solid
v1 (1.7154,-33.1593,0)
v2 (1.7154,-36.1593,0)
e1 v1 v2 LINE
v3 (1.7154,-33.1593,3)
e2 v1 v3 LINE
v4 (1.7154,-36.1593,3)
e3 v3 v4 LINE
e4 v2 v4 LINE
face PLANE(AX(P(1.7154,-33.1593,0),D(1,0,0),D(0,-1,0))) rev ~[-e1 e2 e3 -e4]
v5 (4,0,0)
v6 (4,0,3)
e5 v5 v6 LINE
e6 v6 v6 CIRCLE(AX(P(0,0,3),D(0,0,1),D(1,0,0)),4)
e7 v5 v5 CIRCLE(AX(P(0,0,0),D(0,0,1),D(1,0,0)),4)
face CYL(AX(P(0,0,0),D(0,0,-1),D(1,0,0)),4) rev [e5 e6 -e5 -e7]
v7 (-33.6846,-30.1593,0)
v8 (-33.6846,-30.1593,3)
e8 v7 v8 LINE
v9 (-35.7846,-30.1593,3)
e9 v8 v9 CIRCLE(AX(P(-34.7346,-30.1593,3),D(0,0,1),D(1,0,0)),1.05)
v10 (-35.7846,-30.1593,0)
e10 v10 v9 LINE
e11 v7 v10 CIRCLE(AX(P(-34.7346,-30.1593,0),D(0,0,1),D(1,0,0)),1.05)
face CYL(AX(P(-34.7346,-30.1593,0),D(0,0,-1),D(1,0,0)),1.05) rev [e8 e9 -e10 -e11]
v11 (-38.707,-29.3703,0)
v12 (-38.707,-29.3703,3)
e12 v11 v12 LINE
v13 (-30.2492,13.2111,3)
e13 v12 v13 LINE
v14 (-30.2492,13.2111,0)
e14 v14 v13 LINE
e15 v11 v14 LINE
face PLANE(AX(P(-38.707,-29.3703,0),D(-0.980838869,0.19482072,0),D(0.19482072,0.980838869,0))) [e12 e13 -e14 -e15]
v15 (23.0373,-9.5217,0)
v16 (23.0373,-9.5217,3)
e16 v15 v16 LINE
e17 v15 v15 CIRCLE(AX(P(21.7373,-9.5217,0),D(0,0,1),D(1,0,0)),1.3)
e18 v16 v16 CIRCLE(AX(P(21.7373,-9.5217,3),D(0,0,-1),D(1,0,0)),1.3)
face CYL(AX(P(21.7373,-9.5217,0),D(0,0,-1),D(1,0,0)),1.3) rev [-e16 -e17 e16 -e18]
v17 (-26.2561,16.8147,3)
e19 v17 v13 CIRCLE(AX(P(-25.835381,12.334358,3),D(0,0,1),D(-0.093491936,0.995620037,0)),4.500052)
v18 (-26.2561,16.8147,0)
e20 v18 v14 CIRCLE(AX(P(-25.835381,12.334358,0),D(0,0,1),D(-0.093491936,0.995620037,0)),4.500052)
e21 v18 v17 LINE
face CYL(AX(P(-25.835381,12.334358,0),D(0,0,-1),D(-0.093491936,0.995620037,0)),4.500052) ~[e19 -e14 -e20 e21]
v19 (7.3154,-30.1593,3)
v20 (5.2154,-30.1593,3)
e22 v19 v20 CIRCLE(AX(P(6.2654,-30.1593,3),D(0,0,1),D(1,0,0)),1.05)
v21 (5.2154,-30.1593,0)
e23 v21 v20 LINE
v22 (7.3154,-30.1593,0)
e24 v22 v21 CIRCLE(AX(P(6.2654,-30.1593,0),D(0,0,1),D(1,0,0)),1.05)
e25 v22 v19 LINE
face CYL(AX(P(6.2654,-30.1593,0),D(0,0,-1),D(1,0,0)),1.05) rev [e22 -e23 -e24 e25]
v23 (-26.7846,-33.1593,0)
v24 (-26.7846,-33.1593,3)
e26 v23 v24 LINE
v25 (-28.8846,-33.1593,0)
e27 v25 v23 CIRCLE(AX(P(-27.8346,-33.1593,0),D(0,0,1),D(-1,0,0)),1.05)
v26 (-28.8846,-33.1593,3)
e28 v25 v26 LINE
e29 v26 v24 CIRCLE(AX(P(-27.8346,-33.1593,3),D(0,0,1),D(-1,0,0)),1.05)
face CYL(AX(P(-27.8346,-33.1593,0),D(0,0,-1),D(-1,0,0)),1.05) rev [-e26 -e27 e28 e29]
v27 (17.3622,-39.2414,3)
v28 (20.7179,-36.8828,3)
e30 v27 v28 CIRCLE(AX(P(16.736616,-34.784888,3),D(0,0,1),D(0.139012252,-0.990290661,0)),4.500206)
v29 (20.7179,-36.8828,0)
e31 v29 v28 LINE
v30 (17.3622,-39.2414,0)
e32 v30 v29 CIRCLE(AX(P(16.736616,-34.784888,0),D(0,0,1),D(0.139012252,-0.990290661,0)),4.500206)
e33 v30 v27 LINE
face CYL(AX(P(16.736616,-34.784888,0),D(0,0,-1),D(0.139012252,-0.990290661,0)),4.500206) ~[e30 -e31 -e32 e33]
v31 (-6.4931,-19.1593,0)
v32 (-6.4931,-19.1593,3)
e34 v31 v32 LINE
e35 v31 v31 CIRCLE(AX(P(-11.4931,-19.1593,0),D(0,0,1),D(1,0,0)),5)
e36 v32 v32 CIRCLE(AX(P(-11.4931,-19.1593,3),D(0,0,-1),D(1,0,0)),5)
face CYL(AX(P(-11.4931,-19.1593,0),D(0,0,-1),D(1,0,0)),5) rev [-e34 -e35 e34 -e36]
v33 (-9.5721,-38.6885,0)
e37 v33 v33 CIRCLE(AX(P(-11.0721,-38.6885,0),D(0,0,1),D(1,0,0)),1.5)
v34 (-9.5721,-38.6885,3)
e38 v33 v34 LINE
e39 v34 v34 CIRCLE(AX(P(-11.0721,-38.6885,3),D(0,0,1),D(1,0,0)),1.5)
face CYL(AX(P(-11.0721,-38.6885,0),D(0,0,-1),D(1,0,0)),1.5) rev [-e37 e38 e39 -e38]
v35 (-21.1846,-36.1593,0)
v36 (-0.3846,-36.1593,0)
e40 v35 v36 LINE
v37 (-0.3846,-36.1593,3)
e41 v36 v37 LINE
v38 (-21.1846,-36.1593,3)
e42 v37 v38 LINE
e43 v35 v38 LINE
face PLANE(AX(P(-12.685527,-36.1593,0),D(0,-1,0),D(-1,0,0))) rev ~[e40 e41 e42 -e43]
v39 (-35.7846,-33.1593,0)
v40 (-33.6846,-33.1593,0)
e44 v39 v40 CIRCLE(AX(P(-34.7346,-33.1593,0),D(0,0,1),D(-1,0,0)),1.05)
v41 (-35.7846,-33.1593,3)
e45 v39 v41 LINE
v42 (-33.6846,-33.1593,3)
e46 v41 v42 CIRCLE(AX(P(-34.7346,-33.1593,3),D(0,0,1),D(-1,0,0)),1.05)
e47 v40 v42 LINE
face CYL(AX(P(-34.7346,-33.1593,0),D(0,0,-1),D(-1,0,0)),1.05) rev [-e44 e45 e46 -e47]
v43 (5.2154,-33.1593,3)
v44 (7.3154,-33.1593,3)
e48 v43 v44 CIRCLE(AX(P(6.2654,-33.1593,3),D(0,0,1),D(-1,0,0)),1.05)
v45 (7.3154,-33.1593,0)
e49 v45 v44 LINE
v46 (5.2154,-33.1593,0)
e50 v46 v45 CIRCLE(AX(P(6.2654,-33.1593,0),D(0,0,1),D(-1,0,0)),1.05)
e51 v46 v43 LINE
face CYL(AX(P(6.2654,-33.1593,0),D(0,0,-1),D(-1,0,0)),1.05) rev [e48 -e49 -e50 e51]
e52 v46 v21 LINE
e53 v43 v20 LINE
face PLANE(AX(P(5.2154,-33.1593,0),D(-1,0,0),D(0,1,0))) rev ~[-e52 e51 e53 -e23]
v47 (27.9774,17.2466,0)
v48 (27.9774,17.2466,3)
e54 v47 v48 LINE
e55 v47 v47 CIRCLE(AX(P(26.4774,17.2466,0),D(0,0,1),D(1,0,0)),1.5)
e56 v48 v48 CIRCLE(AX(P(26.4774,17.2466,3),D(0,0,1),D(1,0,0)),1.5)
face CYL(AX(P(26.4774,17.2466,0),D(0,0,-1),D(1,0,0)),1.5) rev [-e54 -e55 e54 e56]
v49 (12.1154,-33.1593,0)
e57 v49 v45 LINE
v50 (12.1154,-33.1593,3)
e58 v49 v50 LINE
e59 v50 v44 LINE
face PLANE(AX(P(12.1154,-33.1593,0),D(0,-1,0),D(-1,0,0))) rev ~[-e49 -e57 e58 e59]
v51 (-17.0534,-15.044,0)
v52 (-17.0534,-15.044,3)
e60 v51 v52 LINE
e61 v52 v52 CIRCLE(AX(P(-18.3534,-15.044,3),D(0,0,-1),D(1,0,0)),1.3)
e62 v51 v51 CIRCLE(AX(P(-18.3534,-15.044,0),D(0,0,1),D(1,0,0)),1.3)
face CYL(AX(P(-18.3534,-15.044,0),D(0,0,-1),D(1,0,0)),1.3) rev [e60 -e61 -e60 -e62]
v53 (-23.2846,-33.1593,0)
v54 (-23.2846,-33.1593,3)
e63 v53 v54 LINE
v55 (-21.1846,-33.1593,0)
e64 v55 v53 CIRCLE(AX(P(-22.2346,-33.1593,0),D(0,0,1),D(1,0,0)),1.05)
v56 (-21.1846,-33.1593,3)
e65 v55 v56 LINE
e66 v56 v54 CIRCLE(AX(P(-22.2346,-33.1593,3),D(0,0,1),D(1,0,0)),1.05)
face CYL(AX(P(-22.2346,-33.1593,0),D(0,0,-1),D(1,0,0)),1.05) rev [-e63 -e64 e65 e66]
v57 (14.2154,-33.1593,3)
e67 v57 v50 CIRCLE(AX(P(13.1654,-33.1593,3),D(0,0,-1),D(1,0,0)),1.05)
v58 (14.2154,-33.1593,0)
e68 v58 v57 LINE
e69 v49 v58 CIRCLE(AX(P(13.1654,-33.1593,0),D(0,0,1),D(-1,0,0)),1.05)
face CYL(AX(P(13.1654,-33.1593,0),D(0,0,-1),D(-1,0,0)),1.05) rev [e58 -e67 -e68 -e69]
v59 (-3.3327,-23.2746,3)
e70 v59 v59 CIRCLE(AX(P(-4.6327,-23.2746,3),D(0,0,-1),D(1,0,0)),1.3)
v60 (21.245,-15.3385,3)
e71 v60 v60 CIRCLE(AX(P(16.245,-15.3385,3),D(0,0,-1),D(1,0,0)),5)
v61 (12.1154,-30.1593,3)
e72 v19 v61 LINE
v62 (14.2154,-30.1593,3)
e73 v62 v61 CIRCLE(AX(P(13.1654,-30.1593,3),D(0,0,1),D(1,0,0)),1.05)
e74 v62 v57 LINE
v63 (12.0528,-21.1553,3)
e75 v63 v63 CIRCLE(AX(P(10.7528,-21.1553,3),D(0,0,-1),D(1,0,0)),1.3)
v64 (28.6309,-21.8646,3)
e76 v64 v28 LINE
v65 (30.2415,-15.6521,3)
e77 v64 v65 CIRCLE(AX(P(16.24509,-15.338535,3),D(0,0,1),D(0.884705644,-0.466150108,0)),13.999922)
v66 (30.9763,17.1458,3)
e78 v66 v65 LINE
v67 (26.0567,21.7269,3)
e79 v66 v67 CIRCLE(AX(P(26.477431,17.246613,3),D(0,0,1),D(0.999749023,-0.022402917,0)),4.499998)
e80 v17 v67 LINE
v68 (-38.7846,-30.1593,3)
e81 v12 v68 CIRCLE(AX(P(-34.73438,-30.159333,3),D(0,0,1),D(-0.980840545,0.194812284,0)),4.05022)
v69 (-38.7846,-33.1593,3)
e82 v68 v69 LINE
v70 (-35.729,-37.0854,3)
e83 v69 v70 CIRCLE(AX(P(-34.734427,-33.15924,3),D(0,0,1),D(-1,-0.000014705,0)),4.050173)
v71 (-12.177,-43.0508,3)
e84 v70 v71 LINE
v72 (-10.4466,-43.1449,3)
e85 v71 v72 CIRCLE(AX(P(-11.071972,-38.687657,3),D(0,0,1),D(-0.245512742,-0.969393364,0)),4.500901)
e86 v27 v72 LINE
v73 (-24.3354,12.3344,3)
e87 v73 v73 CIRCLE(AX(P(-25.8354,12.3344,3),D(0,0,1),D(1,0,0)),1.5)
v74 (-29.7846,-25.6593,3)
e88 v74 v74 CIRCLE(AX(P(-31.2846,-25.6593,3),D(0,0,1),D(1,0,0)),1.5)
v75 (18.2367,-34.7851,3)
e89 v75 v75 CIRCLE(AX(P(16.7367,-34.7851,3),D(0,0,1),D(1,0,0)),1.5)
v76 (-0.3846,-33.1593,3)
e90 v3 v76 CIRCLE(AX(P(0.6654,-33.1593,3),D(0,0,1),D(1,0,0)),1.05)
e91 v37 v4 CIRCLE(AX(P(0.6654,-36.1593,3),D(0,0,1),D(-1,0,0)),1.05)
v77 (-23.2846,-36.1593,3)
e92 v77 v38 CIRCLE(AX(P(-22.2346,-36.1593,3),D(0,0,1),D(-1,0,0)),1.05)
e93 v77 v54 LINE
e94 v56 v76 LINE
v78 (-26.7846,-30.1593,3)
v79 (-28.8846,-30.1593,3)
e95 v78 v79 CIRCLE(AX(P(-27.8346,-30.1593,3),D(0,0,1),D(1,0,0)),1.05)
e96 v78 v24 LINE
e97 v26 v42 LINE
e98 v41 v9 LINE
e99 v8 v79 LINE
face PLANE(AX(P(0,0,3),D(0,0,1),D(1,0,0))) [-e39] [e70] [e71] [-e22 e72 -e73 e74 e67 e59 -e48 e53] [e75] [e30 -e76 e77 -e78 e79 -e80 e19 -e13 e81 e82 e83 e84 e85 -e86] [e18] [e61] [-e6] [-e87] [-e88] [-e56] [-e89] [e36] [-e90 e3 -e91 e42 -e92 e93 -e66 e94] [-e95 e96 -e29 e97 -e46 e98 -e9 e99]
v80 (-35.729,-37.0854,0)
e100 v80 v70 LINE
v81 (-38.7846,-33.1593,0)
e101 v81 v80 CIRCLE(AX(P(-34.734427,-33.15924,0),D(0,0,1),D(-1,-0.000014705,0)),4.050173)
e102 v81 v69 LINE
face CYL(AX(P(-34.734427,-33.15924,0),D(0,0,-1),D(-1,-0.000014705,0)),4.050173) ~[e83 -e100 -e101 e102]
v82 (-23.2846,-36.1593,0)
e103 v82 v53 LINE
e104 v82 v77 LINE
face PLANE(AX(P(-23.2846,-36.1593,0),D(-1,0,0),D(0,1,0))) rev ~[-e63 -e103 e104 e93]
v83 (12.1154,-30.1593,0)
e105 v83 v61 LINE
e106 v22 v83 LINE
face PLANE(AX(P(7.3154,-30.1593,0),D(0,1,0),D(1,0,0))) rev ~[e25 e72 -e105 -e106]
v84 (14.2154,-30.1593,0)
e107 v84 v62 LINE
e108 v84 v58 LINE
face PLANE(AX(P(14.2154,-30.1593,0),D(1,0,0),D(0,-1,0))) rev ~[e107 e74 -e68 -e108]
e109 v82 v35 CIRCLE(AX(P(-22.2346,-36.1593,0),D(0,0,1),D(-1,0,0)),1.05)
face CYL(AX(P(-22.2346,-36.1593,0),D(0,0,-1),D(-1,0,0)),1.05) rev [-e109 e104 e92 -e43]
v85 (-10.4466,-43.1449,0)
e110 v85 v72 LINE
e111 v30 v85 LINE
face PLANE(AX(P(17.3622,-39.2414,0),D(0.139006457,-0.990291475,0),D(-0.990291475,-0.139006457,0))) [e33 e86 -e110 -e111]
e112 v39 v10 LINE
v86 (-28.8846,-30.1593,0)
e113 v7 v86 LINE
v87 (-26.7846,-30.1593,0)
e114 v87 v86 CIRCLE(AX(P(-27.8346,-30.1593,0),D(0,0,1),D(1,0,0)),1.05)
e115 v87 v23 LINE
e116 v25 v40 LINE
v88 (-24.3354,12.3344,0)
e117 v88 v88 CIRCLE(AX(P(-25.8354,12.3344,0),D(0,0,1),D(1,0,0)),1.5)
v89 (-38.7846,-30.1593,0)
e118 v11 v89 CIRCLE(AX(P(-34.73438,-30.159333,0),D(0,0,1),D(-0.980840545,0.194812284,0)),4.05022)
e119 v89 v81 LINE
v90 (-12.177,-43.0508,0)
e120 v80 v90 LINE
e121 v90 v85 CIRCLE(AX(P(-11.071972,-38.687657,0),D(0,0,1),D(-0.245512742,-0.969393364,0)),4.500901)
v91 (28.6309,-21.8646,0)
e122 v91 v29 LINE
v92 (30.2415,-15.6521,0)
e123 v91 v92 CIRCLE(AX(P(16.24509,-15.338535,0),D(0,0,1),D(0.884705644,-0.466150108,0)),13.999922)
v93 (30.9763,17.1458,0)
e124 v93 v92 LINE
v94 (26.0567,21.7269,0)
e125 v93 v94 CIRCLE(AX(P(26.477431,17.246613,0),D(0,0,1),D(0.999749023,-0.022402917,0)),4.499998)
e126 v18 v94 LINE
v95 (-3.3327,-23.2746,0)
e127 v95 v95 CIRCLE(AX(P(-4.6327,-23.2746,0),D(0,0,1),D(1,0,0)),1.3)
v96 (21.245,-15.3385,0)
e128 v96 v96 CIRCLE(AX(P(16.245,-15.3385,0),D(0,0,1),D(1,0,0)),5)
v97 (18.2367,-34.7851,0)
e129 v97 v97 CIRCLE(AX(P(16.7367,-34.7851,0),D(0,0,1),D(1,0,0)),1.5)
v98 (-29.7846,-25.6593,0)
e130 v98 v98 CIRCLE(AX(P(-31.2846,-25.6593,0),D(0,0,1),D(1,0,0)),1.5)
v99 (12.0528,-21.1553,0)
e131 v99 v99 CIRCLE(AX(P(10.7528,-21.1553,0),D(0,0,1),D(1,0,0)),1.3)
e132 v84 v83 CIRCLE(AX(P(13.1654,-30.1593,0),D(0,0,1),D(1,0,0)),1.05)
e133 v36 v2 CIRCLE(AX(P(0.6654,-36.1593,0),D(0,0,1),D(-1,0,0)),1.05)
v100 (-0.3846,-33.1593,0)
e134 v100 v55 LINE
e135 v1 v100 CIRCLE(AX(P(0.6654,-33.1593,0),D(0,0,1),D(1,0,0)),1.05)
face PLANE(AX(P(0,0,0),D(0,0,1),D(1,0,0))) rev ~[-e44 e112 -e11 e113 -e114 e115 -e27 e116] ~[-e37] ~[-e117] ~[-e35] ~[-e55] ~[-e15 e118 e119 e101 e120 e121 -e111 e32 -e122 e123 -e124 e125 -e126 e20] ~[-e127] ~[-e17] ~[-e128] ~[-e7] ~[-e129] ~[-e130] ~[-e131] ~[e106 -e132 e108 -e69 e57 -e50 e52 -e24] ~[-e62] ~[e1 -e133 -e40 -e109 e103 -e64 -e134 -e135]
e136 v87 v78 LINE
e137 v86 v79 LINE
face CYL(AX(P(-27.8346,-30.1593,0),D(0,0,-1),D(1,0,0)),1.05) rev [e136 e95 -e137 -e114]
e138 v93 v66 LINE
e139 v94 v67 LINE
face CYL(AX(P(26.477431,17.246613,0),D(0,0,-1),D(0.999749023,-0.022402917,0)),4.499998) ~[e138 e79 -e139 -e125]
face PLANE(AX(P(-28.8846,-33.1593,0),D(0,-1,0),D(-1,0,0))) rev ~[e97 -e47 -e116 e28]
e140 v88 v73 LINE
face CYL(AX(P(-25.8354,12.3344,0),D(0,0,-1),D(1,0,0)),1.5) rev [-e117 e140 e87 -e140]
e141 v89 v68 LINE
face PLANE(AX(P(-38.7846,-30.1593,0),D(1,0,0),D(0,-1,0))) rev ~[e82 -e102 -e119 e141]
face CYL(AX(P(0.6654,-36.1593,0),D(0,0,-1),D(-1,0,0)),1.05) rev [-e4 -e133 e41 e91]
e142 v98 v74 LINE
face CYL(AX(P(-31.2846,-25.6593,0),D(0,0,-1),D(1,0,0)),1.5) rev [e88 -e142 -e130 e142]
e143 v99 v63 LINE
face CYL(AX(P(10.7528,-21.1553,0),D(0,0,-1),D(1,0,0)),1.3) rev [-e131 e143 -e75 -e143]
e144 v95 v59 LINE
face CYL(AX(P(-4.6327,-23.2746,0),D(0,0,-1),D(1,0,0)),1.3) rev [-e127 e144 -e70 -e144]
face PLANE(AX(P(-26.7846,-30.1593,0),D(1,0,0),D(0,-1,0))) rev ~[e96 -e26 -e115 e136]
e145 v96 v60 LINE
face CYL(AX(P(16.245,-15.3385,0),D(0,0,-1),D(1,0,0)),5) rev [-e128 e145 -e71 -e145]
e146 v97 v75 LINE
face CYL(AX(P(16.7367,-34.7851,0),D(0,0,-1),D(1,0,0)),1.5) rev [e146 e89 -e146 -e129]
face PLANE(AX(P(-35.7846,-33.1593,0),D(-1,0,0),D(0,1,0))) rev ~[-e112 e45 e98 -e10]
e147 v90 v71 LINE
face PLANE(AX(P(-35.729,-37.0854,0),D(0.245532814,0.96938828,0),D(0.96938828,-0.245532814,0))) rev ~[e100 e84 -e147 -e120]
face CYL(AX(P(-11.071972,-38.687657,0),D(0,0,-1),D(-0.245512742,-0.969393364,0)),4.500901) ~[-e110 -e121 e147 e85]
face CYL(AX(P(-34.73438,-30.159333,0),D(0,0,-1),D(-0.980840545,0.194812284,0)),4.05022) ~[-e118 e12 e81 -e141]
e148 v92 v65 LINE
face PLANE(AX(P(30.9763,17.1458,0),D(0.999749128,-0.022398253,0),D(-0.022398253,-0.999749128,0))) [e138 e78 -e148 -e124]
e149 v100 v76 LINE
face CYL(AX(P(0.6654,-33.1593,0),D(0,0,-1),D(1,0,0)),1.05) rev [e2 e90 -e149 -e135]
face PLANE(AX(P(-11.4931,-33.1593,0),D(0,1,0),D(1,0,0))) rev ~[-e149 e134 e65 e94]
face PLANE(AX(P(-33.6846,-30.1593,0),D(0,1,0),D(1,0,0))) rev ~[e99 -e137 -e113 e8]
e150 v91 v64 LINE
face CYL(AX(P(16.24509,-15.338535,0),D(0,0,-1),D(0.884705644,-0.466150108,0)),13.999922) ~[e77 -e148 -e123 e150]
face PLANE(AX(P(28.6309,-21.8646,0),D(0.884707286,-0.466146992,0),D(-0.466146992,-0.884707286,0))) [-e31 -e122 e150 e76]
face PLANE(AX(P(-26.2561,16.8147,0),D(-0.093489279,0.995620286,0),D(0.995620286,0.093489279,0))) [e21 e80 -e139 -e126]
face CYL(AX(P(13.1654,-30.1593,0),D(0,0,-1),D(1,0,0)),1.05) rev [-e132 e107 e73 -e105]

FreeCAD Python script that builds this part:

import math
import FreeCAD as App
import Part
import Sketcher

V = App.Vector
Q = App.Units.Quantity

doc = App.newDocument("Part")
body = doc.addObject("PartDesign::Body", "Body")

sketch1 = body.newObject("Sketcher::SketchObject", "Sketch")
sketch1.AttachmentSupport = (doc.getObject("XY_Plane"), [""])
sketch1.MapMode = "FlatFace"
sketch1.addGeometry([
    Part.LineSegment(V(26.0567, 21.7269, 0), V(-26.2561, 16.8147, 0)),
    Part.ArcOfCircle(Part.Circle(V(-25.8354, 12.3344, 0), V(0, 0, 1), 4.500009), math.radians(95.364342), math.radians(168.765727)),
    Part.LineSegment(V(-30.2492, 13.2111, 0), V(-38.707, -29.3703, 0)),
    Part.ArcOfCircle(Part.Circle(V(-34.7346, -30.1593, 0), V(0, 0, 1), 4.049998), math.radians(168.766088), math.radians(180)),
    Part.LineSegment(V(-38.7846, -30.1593, 0), V(-38.7846, -33.1593, 0)),
    Part.ArcOfCircle(Part.Circle(V(-34.7346, -33.1593, 0), V(0, 0, 1), 4.05), math.radians(180), math.radians(255.787054)),
    Part.LineSegment(V(-35.729, -37.0854, 0), V(-12.177, -43.0508, 0)),
    Part.ArcOfCircle(Part.Circle(V(-11.0721, -38.6885, 0), V(0, 0, 1), 4.500052), math.radians(-104.213188), math.radians(-82.010164)),
    Part.LineSegment(V(-10.4466, -43.1449, 0), V(17.3622, -39.2414, 0)),
    Part.ArcOfCircle(Part.Circle(V(16.7367, -34.7851, 0), V(0, 0, 1), 4.499984), math.radians(-82.009987), math.radians(-27.784811)),
    Part.LineSegment(V(20.7179, -36.8828, 0), V(28.6309, -21.8646, 0)),
    Part.ArcOfCircle(Part.Circle(V(16.245, -15.3385, 0), V(0, 0, 1), 14.000018), math.radians(-27.784635), math.radians(-1.283532)),
    Part.LineSegment(V(30.2415, -15.6521, 0), V(30.9763, 17.1458, 0)),
    Part.ArcOfCircle(Part.Circle(V(26.4774, 17.2466, 0), V(0, 0, 1), 4.500029), math.radians(-1.283525), math.radians(95.364342)),
    Part.ArcOfCircle(Part.Circle(V(-34.7346, -30.1593, 0), V(0, 0, 1), 1.05), math.radians(0), math.radians(180)),
    Part.LineSegment(V(-33.6846, -30.1593, 0), V(-28.8846, -30.1593, 0)),
    Part.ArcOfCircle(Part.Circle(V(-27.8346, -30.1593, 0), V(0, 0, 1), 1.05), math.radians(0), math.radians(180)),
    Part.LineSegment(V(-26.7846, -30.1593, 0), V(-26.7846, -33.1593, 0)),
    Part.ArcOfCircle(Part.Circle(V(-27.8346, -33.1593, 0), V(0, 0, 1), 1.05), math.radians(180), math.radians(360)),
    Part.LineSegment(V(-28.8846, -33.1593, 0), V(-33.6846, -33.1593, 0)),
    Part.ArcOfCircle(Part.Circle(V(-34.7346, -33.1593, 0), V(0, 0, 1), 1.05), math.radians(180), math.radians(360)),
    Part.LineSegment(V(-35.7846, -33.1593, 0), V(-35.7846, -30.1593, 0)),
    Part.ArcOfCircle(Part.Circle(V(-22.2346, -33.1593, 0), V(0, 0, 1), 1.05), math.radians(0), math.radians(180)),
    Part.LineSegment(V(-21.1846, -33.1593, 0), V(-0.3846, -33.1593, 0)),
    Part.ArcOfCircle(Part.Circle(V(0.6654, -33.1593, 0), V(0, 0, 1), 1.05), math.radians(0), math.radians(180)),
    Part.LineSegment(V(1.7154, -33.1593, 0), V(1.7154, -36.1593, 0)),
    Part.ArcOfCircle(Part.Circle(V(0.6654, -36.1593, 0), V(0, 0, 1), 1.05), math.radians(180), math.radians(360)),
    Part.LineSegment(V(-0.3846, -36.1593, 0), V(-21.1846, -36.1593, 0)),
    Part.ArcOfCircle(Part.Circle(V(-22.2346, -36.1593, 0), V(0, 0, 1), 1.05), math.radians(180), math.radians(360)),
    Part.LineSegment(V(-23.2846, -36.1593, 0), V(-23.2846, -33.1593, 0)),
    Part.Circle(V(-31.2846, -25.6593, 0), V(0, 0, 1), 1.5),
    Part.ArcOfCircle(Part.Circle(V(6.2654, -30.1593, 0), V(0, 0, 1), 1.05), math.radians(0), math.radians(180)),
    Part.LineSegment(V(7.3154, -30.1593, 0), V(12.1154, -30.1593, 0)),
    Part.ArcOfCircle(Part.Circle(V(13.1654, -30.1593, 0), V(0, 0, 1), 1.05), math.radians(0), math.radians(180)),
    Part.LineSegment(V(14.2154, -30.1593, 0), V(14.2154, -33.1593, 0)),
    Part.ArcOfCircle(Part.Circle(V(13.1654, -33.1593, 0), V(0, 0, 1), 1.05), math.radians(180), math.radians(360)),
    Part.LineSegment(V(12.1154, -33.1593, 0), V(7.3154, -33.1593, 0)),
    Part.ArcOfCircle(Part.Circle(V(6.2654, -33.1593, 0), V(0, 0, 1), 1.05), math.radians(180), math.radians(360)),
    Part.LineSegment(V(5.2154, -33.1593, 0), V(5.2154, -30.1593, 0)),
    Part.Circle(V(-25.8354, 12.3344, 0), V(0, 0, 1), 1.5),
    Part.Circle(V(0, 0, 0), V(0, 0, 1), 4),
    Part.Circle(V(26.4774, 17.2466, 0), V(0, 0, 1), 1.5),
    Part.Circle(V(-11.0721, -38.6885, 0), V(0, 0, 1), 1.5),
    Part.Circle(V(16.7367, -34.7851, 0), V(0, 0, 1), 1.5),
], False)
sketch1.addConstraint([
    Sketcher.Constraint("Tangent", 0, 2, 1, 1),
    Sketcher.Constraint("Tangent", 1, 2, 2, 1),
    Sketcher.Constraint("Tangent", 2, 2, 3, 1),
    Sketcher.Constraint("Tangent", 3, 2, 4, 1),
    Sketcher.Constraint("Tangent", 4, 2, 5, 1),
    Sketcher.Constraint("Tangent", 5, 2, 6, 1),
    Sketcher.Constraint("Tangent", 6, 2, 7, 1),
    Sketcher.Constraint("Tangent", 7, 2, 8, 1),
    Sketcher.Constraint("Tangent", 8, 2, 9, 1),
    Sketcher.Constraint("Tangent", 9, 2, 10, 1),
    Sketcher.Constraint("Tangent", 10, 2, 11, 1),
    Sketcher.Constraint("Tangent", 11, 2, 12, 1),
    Sketcher.Constraint("Tangent", 12, 2, 13, 1),
    Sketcher.Constraint("Tangent", 13, 2, 0, 1),
    Sketcher.Constraint("Coincident", 14, 1, 15, 1),
    Sketcher.Constraint("Coincident", 15, 2, 16, 2),
    Sketcher.Constraint("Tangent", 16, 1, 17, 1),
    Sketcher.Constraint("Tangent", 17, 2, 18, 2),
    Sketcher.Constraint("Coincident", 18, 1, 19, 1),
    Sketcher.Constraint("Coincident", 19, 2, 20, 2),
    Sketcher.Constraint("Tangent", 20, 1, 21, 1),
    Sketcher.Constraint("Tangent", 21, 2, 14, 2),
    Sketcher.Constraint("Coincident", 22, 1, 23, 1),
    Sketcher.Constraint("Coincident", 23, 2, 24, 2),
    Sketcher.Constraint("Tangent", 24, 1, 25, 1),
    Sketcher.Constraint("Tangent", 25, 2, 26, 2),
    Sketcher.Constraint("Coincident", 26, 1, 27, 1),
    Sketcher.Constraint("Coincident", 27, 2, 28, 2),
    Sketcher.Constraint("Tangent", 28, 1, 29, 1),
    Sketcher.Constraint("Tangent", 29, 2, 22, 2),
    Sketcher.Constraint("Coincident", 31, 1, 32, 1),
    Sketcher.Constraint("Coincident", 32, 2, 33, 2),
    Sketcher.Constraint("Tangent", 33, 1, 34, 1),
    Sketcher.Constraint("Tangent", 34, 2, 35, 2),
    Sketcher.Constraint("Coincident", 35, 1, 36, 1),
    Sketcher.Constraint("Coincident", 36, 2, 37, 2),
    Sketcher.Constraint("Tangent", 37, 1, 38, 1),
    Sketcher.Constraint("Tangent", 38, 2, 31, 2),
    Sketcher.Constraint("Vertical", 4),
    Sketcher.Constraint("Horizontal", 15),
    Sketcher.Constraint("Vertical", 17),
    Sketcher.Constraint("Horizontal", 19),
    Sketcher.Constraint("Vertical", 21),
    Sketcher.Constraint("Horizontal", 23),
    Sketcher.Constraint("Vertical", 25),
    Sketcher.Constraint("Horizontal", 27),
    Sketcher.Constraint("Vertical", 29),
    Sketcher.Constraint("Horizontal", 32),
    Sketcher.Constraint("Vertical", 34),
    Sketcher.Constraint("Horizontal", 36),
    Sketcher.Constraint("Vertical", 38),
    Sketcher.Constraint("Coincident", 40, 3, -1, 1),
    Sketcher.Constraint("Coincident", 14, 3, 3, 3),
    Sketcher.Constraint("Coincident", 20, 3, 5, 3),
    Sketcher.Constraint("Coincident", 39, 3, 1, 3),
    Sketcher.Constraint("Coincident", 41, 3, 13, 3),
    Sketcher.Constraint("Coincident", 42, 3, 7, 3),
    Sketcher.Constraint("Coincident", 43, 3, 9, 3),
    Sketcher.Constraint("Equal", 3, 5),
    Sketcher.Constraint("Equal", 1, 7),
    Sketcher.Constraint("Equal", 7, 9),
    Sketcher.Constraint("Equal", 9, 13),
    Sketcher.Constraint("Equal", 14, 16),
    Sketcher.Constraint("Equal", 16, 18),
    Sketcher.Constraint("Equal", 20, 22),
    Sketcher.Constraint("Equal", 22, 24),
    Sketcher.Constraint("Equal", 24, 26),
    Sketcher.Constraint("Equal", 26, 28),
    Sketcher.Constraint("Equal", 28, 31),
    Sketcher.Constraint("Equal", 31, 33),
    Sketcher.Constraint("Equal", 33, 35),
    Sketcher.Constraint("Equal", 35, 37),
    Sketcher.Constraint("Equal", 30, 39),
    Sketcher.Constraint("Equal", 39, 41),
    Sketcher.Constraint("Equal", 41, 42),
    Sketcher.Constraint("Equal", 42, 43),
    Sketcher.Constraint("Horizontal", 14, 3, 16, 3),
    Sketcher.Constraint("Horizontal", 5, 3, 18, 3),
    Sketcher.Constraint("Horizontal", 20, 3, 22, 3),
    Sketcher.Constraint("Horizontal", 22, 3, 24, 3),
    Sketcher.Constraint("Horizontal", 26, 3, 28, 3),
    Sketcher.Constraint("Horizontal", 16, 3, 31, 3),
    Sketcher.Constraint("Horizontal", 31, 3, 33, 3),
    Sketcher.Constraint("Horizontal", 24, 3, 35, 3),
    Sketcher.Constraint("Horizontal", 35, 3, 37, 3),
    Sketcher.Constraint("Horizontal", 3, 2, 14, 1),
    Sketcher.Constraint("Horizontal", 17, 2, 18, 1),
    Sketcher.Constraint("Horizontal", 20, 1, 22, 1),
    Sketcher.Constraint("Horizontal", 25, 2, 26, 1),
    Sketcher.Constraint("Horizontal", 21, 2, 31, 1),
    Sketcher.Constraint("Horizontal", 34, 2, 35, 1),
    Sketcher.Constraint("Equal", 19, 32),
    Sketcher.Constraint("Equal", 21, 25),
    Sketcher.Constraint("Diameter", 30, Q("3 mm")),
    Sketcher.Constraint("Radius", 11, Q("14 mm")),
    Sketcher.Constraint("Radius", 1, Q("4.5 mm")),
    Sketcher.Constraint("DistanceY", 4, 2, 4, 1, Q("3 mm")),
    Sketcher.Constraint("Radius", 3, Q("4.05 mm")),
    Sketcher.Constraint("Radius", 14, Q("1.05 mm")),
    Sketcher.Constraint("Diameter", 40, Q("8 mm")),
    Sketcher.Constraint("DistanceX", 15, 1, 15, 2, Q("4.8 mm")),
    Sketcher.Constraint("DistanceX", 23, 1, 23, 2, Q("20.8 mm")),
    Sketcher.Constraint("Angle", 8, Q("7.9904 deg")),
    Sketcher.Constraint("Distance", 0, Q("52.543 mm")),
    Sketcher.Constraint("DistanceX", 7, 3, -1, 1, Q("11.072 mm")),
    Sketcher.Constraint("DistanceY", 9, 3, -1, 1, Q("34.785 mm")),
    Sketcher.Constraint("DistanceX", -1, 1, 11, 3, Q("16.245 mm")),
    Sketcher.Constraint("DistanceX", 0, 2, -1, 1, Q("26.256 mm")),
    Sketcher.Constraint("DistanceY", -1, 1, 1, 2, Q("13.211 mm")),
    Sketcher.Constraint("DistanceX", 2, 2, -1, 1, Q("38.707 mm")),
    Sketcher.Constraint("DistanceX", 5, 2, -1, 1, Q("35.729 mm")),
    Sketcher.Constraint("DistanceX", -1, 1, 10, 2, Q("28.631 mm")),
    Sketcher.Constraint("DistanceY", 11, 2, -1, 1, Q("15.652 mm")),
    Sketcher.Constraint("DistanceY", -1, 1, 13, 2, Q("21.727 mm")),
    Sketcher.Constraint("DistanceX", 22, 3, -1, 1, Q("22.2346 mm")),
    Sketcher.Constraint("DistanceX", 30, 3, -1, 1, Q("31.2846 mm")),
    Sketcher.Constraint("DistanceY", 30, 3, -1, 1, Q("25.6593 mm")),
    Sketcher.Constraint("DistanceX", -1, 1, 31, 3, Q("6.2654 mm")),
])
pad1 = body.newObject("PartDesign::Pad", "Pad")
pad1.Profile = sketch1
pad1.Length = 3

sketch2 = body.newObject("Sketcher::SketchObject", "Sketch001")
sketch2.AttachmentSupport = (doc.getObject("XY_Plane"), [""])
sketch2.MapMode = "FlatFace"
sketch2.addGeometry([
    Part.Circle(V(-11.4931, -19.1593, 0), V(0, 0, 1), 5),
    Part.Circle(V(-18.3534, -15.044, 0), V(0, 0, 1), 1.3),
    Part.Circle(V(16.245, -15.3385, 0), V(0, 0, 1), 5),
    Part.Circle(V(10.7528, -21.1553, 0), V(0, 0, 1), 1.3),
    Part.Circle(V(-4.6327, -23.2746, 0), V(0, 0, 1), 1.3),
    Part.Circle(V(21.7373, -9.5217, 0), V(0, 0, 1), 1.3),
], False)
sketch2.addConstraint([
    Sketcher.Constraint("Equal", 0, 2),
    Sketcher.Constraint("Equal", 1, 3),
    Sketcher.Constraint("Equal", 3, 4),
    Sketcher.Constraint("Equal", 4, 5),
    Sketcher.Constraint("Diameter", 0, Q("10 mm")),
    Sketcher.Constraint("Diameter", 1, Q("2.6 mm")),
    Sketcher.Constraint("DistanceX", 4, 3, 5, 3, Q("26.37 mm")),
    Sketcher.Constraint("DistanceX", 0, 3, -1, 1, Q("11.493 mm")),
    Sketcher.Constraint("DistanceY", 1, 3, -1, 1, Q("15.044 mm")),
    Sketcher.Constraint("DistanceX", -1, 1, 2, 3, Q("16.245 mm")),
    Sketcher.Constraint("DistanceX", 0, 3, 3, 3, Q("22.246 mm")),
    Sketcher.Constraint("DistanceY", 3, 3, 0, 3, Q("1.996 mm")),
    Sketcher.Constraint("DistanceY", 4, 3, 2, 3, Q("7.936 mm")),
    Sketcher.Constraint("DistanceY", 4, 3, 5, 3, Q("13.753 mm")),
    Sketcher.Constraint("DistanceY", 0, 3, -1, 1, Q("19.1593 mm")),
    Sketcher.Constraint("DistanceX", 1, 3, -1, 1, Q("18.3534 mm")),
    Sketcher.Constraint("DistanceY", 2, 3, -1, 1, Q("15.3385 mm")),
    Sketcher.Constraint("DistanceX", 4, 3, -1, 1, Q("4.6327 mm")),
])
pocket1 = body.newObject("PartDesign::Pocket", "Pocket")
pocket1.Profile = sketch2
pocket1.Length = 10
pocket1.Reversed = True

doc.recompute()
